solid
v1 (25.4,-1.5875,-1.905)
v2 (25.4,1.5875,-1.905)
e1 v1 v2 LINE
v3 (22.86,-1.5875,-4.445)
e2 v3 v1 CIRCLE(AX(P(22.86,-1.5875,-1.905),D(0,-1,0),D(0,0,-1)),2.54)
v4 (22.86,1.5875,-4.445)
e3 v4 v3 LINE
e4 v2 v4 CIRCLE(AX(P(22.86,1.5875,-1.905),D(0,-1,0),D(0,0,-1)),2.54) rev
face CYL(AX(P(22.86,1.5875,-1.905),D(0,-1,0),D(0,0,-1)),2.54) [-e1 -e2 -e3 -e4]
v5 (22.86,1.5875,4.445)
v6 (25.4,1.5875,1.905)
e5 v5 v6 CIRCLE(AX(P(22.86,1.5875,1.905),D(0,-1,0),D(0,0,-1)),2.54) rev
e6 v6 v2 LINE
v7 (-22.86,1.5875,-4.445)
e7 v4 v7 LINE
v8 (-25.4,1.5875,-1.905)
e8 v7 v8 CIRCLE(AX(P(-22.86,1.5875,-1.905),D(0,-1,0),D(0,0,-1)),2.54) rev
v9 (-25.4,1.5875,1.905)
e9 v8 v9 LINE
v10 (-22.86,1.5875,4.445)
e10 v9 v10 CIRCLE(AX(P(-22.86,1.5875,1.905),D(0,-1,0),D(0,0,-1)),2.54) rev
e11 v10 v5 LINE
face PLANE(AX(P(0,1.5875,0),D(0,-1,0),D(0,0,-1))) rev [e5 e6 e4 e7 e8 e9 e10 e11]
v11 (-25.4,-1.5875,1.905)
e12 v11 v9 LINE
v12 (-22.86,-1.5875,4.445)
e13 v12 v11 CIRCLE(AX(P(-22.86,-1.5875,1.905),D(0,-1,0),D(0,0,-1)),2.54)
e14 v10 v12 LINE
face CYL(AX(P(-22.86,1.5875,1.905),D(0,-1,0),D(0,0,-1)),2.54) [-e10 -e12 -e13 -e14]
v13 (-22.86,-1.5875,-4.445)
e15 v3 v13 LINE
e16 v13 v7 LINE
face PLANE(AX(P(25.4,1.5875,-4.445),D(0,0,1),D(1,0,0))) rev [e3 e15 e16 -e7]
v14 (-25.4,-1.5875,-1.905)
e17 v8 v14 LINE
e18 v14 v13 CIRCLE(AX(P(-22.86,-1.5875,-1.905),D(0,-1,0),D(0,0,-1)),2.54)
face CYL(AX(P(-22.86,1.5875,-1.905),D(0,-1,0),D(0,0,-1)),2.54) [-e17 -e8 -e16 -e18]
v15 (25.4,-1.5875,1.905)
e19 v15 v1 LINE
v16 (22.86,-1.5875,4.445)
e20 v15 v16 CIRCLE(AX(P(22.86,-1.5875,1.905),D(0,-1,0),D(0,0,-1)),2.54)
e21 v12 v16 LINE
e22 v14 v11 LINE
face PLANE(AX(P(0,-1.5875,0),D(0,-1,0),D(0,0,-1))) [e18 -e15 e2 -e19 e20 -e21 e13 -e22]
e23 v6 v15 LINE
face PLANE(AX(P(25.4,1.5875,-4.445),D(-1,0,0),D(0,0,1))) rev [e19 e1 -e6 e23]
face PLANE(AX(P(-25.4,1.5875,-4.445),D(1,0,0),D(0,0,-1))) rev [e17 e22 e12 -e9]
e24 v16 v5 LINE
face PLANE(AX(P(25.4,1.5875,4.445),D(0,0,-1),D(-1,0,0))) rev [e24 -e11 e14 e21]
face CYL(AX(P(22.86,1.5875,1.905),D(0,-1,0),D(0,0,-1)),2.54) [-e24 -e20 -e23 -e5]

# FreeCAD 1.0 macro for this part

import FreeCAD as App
import Part
import Sketcher
Q = App.Units.Quantity


def edges_at(feature, points):
    """Names of the edges that pass closest to the given points."""
    edges = feature.Shape.Edges
    near = lambda p: min(range(len(edges)), key=lambda i: edges[i].distToShape(Part.Vertex(*p))[0])
    return sorted({f"Edge{near(p) + 1}" for p in points})


def add_polygon(sketch, points):
    """Adds a closed chain of lines whose ends are joined by coincident constraints."""
    first, n = sketch.GeometryCount, len(points)
    for a, b in zip(points, points[1:] + points[:1]):
        sketch.addGeometry(Part.LineSegment(App.Vector(*a, 0), App.Vector(*b, 0)), False)
    for i in range(n):
        sketch.addConstraint(Sketcher.Constraint("Coincident", first + i, 2, first + (i + 1) % n, 1))

doc = App.newDocument("Part")
body = doc.addObject("PartDesign::Body", "Body")

sketch1 = doc.addObject("Sketcher::SketchObject", "Sketch")
body.addObject(sketch1)
sketch1.AttachmentSupport = (doc.XZ_Plane, [""])
sketch1.MapMode = "FlatFace"
add_polygon(sketch1, [(-25, -4), (-25, 4), (25, 4), (25, -4)])
sketch1.addConstraint(Sketcher.Constraint("Vertical", 0))
sketch1.addConstraint(Sketcher.Constraint("Horizontal", 1))
sketch1.addConstraint(Sketcher.Constraint("Vertical", 2))
sketch1.addConstraint(Sketcher.Constraint("Horizontal", 3))
sketch1.addConstraint(Sketcher.Constraint("Symmetric", 0, 2, 2, 2, -1, 1))
sketch1.addConstraint(Sketcher.Constraint("DistanceX", 1, 1, 1, 2, Q("2 in")))
sketch1.addConstraint(Sketcher.Constraint("DistanceY", 0, 1, 0, 2, Q("0.35 in")))
pad1 = doc.addObject("PartDesign::Pad", "Pad")
body.addObject(pad1)
pad1.Profile = sketch1
pad1.Length = Q("0.125 in")
pad1.Midplane = True
doc.recompute()

fillet = doc.addObject("PartDesign::Fillet", "Fillet")
body.addObject(fillet)
fillet.Base = (pad1, edges_at(pad1, [
    (-25.4, 0, -4.445),
    (25.4, 0, -4.445),
    (25.4, 0, 4.445),
    (-25.4, 0, 4.445),
]))
fillet.Radius = Q("0.1 in")

doc.recompute()
